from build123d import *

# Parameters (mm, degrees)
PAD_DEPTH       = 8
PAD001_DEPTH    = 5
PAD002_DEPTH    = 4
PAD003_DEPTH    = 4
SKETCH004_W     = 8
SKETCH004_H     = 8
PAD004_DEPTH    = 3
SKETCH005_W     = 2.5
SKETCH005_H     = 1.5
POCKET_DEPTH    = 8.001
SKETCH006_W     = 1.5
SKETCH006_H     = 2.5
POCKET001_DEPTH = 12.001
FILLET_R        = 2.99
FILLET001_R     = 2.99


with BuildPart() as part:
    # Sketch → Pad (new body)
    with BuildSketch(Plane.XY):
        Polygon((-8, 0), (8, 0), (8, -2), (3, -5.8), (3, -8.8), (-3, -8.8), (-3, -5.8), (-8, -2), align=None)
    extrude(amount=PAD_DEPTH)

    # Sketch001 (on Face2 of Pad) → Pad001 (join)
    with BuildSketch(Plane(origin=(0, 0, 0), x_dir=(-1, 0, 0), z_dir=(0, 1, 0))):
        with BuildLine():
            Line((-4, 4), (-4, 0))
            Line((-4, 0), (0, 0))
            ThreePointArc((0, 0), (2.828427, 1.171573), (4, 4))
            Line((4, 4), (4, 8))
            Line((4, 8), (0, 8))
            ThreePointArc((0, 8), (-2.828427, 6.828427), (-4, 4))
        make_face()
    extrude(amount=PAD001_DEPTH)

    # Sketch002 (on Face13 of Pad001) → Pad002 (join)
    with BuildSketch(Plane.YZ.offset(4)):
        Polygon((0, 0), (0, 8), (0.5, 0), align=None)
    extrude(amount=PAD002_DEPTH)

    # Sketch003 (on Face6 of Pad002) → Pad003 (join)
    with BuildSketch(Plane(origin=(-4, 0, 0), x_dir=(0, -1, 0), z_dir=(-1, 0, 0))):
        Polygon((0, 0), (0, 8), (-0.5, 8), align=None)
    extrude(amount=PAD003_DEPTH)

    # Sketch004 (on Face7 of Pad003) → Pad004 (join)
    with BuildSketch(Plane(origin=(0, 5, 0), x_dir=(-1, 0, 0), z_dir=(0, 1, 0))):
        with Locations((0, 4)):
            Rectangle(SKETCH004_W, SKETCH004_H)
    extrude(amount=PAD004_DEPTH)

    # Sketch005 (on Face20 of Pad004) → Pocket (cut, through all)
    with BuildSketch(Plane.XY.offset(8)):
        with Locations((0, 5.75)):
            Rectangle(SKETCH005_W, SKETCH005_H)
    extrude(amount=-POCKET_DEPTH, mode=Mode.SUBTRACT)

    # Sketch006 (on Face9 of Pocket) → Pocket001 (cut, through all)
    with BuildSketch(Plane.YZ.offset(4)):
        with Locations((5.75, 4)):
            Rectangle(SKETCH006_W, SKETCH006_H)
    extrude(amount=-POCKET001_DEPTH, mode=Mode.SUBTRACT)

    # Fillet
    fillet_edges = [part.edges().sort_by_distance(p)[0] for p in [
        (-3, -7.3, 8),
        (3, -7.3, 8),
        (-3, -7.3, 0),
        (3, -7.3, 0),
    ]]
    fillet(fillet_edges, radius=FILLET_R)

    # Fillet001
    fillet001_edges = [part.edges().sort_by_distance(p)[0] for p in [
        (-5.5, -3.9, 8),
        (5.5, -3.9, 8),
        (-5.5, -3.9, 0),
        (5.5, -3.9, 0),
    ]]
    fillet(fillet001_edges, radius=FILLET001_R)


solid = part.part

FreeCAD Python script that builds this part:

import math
import FreeCAD as App
import Part
import Sketcher
from FreeCAD import Vector
Q = App.Units.Quantity


def edges_at(feature, points):
    """Names of the edges that pass closest to the given points."""
    edges = feature.Shape.Edges
    near = lambda p: min(range(len(edges)), key=lambda i: edges[i].distToShape(Part.Vertex(*p))[0])
    return sorted({f"Edge{near(p) + 1}" for p in points})

doc = App.newDocument("Part")
body = doc.addObject("PartDesign::Body", "Body")

# Sketch on XY plane
sketch1 = doc.addObject("Sketcher::SketchObject", "Sketch")
body.addObject(sketch1)
sketch1.AttachmentSupport = (doc.XY_Plane, [""])
sketch1.MapMode = "FlatFace"
sketch1.addGeometry([
    Part.LineSegment(Vector(8, 0, 0), Vector(-8, 0, 0)),  # 0
    Part.LineSegment(Vector(-8, 0, 0), Vector(-8, -2, 0)),  # 1
    Part.LineSegment(Vector(-8, -2, 0), Vector(-3, -5.8, 0)),  # 2
    Part.LineSegment(Vector(-3, -5.8, 0), Vector(-3, -8.8, 0)),  # 3
    Part.LineSegment(Vector(-3, -8.8, 0), Vector(3, -8.8, 0)),  # 4
    Part.LineSegment(Vector(3, -8.8, 0), Vector(3, -5.8, 0)),  # 5
    Part.LineSegment(Vector(3, -5.8, 0), Vector(8, -2, 0)),  # 6
    Part.LineSegment(Vector(8, -2, 0), Vector(8, 0, 0)),  # 7
], False)
sketch1.addConstraint([
    Sketcher.Constraint("Coincident", 0, 2, 1, 1),
    Sketcher.Constraint("Coincident", 1, 2, 2, 1),
    Sketcher.Constraint("Coincident", 2, 2, 3, 1),
    Sketcher.Constraint("Coincident", 3, 2, 4, 1),
    Sketcher.Constraint("Coincident", 4, 2, 5, 1),
    Sketcher.Constraint("Coincident", 5, 2, 6, 1),
    Sketcher.Constraint("Coincident", 6, 2, 7, 1),
    Sketcher.Constraint("Coincident", 7, 2, 0, 1),
    Sketcher.Constraint("Horizontal", 0),
    Sketcher.Constraint("Vertical", 1),
    Sketcher.Constraint("Vertical", 3),
    Sketcher.Constraint("Horizontal", 4),
    Sketcher.Constraint("Vertical", 5),
    Sketcher.Constraint("Vertical", 7),
    Sketcher.Constraint("Symmetric", 0, 2, 7, 2, -1, 1),
    Sketcher.Constraint("Symmetric", 2, 2, 5, 2, -2),
    Sketcher.Constraint("Horizontal", 1, 2, 6, 2),
    Sketcher.Constraint("DistanceX", 0, 2, 0, 1, Q("16 mm")),
    Sketcher.Constraint("DistanceX", 4, 1, 4, 2, Q("6 mm")),
    Sketcher.Constraint("DistanceY", 1, 2, 1, 1, Q("2 mm")),
    Sketcher.Constraint("DistanceY", 3, 2, 3, 1, Q("3 mm")),
    Sketcher.Constraint("DistanceY", 2, 2, -1, 1, Q("5.8 mm")),
])
pad1 = doc.addObject("PartDesign::Pad", "Pad")
body.addObject(pad1)
pad1.Profile = sketch1
pad1.Length = 8

# Sketch on XZ plane
sketch2 = doc.addObject("Sketcher::SketchObject", "Sketch001")
body.addObject(sketch2)
sketch2.AttachmentSupport = (doc.XZ_Plane, [""])
sketch2.MapMode = "FlatFace"
sketch2.addGeometry([
    Part.LineSegment(Vector(4, 4, 0), Vector(4, 0, 0)),  # 0
    Part.LineSegment(Vector(4, 0, 0), Vector(0, 0, 0)),  # 1
    Part.ArcOfCircle(Part.Circle(Vector(0, 4, 0), Vector(0, 0, 1), 4), math.radians(-179.999994), math.radians(-90.000006)),  # 2
    Part.LineSegment(Vector(-4, 4, 0), Vector(-4, 8, 0)),  # 3
    Part.LineSegment(Vector(-4, 8, 0), Vector(0, 8, 0)),  # 4
    Part.ArcOfCircle(Part.Circle(Vector(0, 4, 0), Vector(0, 0, 1), 4), math.radians(0.000006), math.radians(89.999994)),  # 5
], False)
sketch2.addConstraint([
    Sketcher.Constraint("Coincident", 0, 2, 1, 1),
    Sketcher.Constraint("Tangent", 1, 2, 2, 2),
    Sketcher.Constraint("Tangent", 2, 1, 3, 1),
    Sketcher.Constraint("Coincident", 3, 2, 4, 1),
    Sketcher.Constraint("Tangent", 4, 2, 5, 2),
    Sketcher.Constraint("Tangent", 5, 1, 0, 1),
    Sketcher.Constraint("Vertical", 0),
    Sketcher.Constraint("Horizontal", 1),
    Sketcher.Constraint("Vertical", 3),
    Sketcher.Constraint("Horizontal", 4),
    Sketcher.Constraint("Coincident", 1, 2, -1, 1),
    Sketcher.Constraint("Coincident", 5, 3, 2, 3),
    Sketcher.Constraint("Equal", 2, 5),
    Sketcher.Constraint("Radius", 2, Q("4 mm")),
])
pad2 = doc.addObject("PartDesign::Pad", "Pad001")
body.addObject(pad2)
pad2.Profile = sketch2
pad2.Length = 5
pad2.Reversed = True

# Sketch on YZ plane
sketch3 = doc.addObject("Sketcher::SketchObject", "Sketch002")
body.addObject(sketch3)
sketch3.AttachmentSupport = (doc.YZ_Plane, [""])
sketch3.MapMode = "FlatFace"
sketch3.AttachmentOffset = App.Placement(Vector(0, 0, 4), App.Rotation())
sketch3.addGeometry([
    Part.LineSegment(Vector(0, 8, 0), Vector(0, 0, 0)),
    Part.LineSegment(Vector(0, 0, 0), Vector(0.5, 0, 0)),
    Part.LineSegment(Vector(0.5, 0, 0), Vector(0, 8, 0)),
], False)
sketch3.addConstraint([
    Sketcher.Constraint("Coincident", 0, 2, 1, 1),
    Sketcher.Constraint("Coincident", 1, 2, 2, 1),
    Sketcher.Constraint("Coincident", 2, 2, 0, 1),
    Sketcher.Constraint("Vertical", 0),
    Sketcher.Constraint("Horizontal", 1),
    Sketcher.Constraint("Coincident", 0, 2, -1, 1),
    Sketcher.Constraint("DistanceY", 0, 2, 0, 1, Q("8 mm")),
    Sketcher.Constraint("DistanceX", 1, 1, 1, 2, Q("0.5 mm")),
])
pad3 = doc.addObject("PartDesign::Pad", "Pad002")
body.addObject(pad3)
pad3.Profile = sketch3
pad3.Length = 4

# Sketch on YZ plane
sketch4 = doc.addObject("Sketcher::SketchObject", "Sketch003")
body.addObject(sketch4)
sketch4.AttachmentSupport = (doc.YZ_Plane, [""])
sketch4.MapMode = "FlatFace"
sketch4.AttachmentOffset = App.Placement(Vector(0, 0, -4), App.Rotation())
sketch4.addGeometry([
    Part.LineSegment(Vector(0, 0, 0), Vector(0, 8, 0)),
    Part.LineSegment(Vector(0, 8, 0), Vector(0.5, 8, 0)),
    Part.LineSegment(Vector(0.5, 8, 0), Vector(0, 0, 0)),
], False)
sketch4.addConstraint([
    Sketcher.Constraint("Coincident", 0, 2, 1, 1),
    Sketcher.Constraint("Coincident", 1, 2, 2, 1),
    Sketcher.Constraint("Coincident", 2, 2, 0, 1),
    Sketcher.Constraint("Vertical", 0),
    Sketcher.Constraint("Horizontal", 1),
    Sketcher.Constraint("Coincident", 2, 2, -1, 1),
    Sketcher.Constraint("DistanceY", 0, 1, 0, 2, Q("8 mm")),
    Sketcher.Constraint("DistanceX", 1, 1, 1, 2, Q("0.5 mm")),
])
pad4 = doc.addObject("PartDesign::Pad", "Pad003")
body.addObject(pad4)
pad4.Profile = sketch4
pad4.Length = 4
pad4.Reversed = True

# Sketch on XZ plane
sketch5 = doc.addObject("Sketcher::SketchObject", "Sketch004")
body.addObject(sketch5)
sketch5.AttachmentSupport = (doc.XZ_Plane, [""])
sketch5.MapMode = "FlatFace"
sketch5.AttachmentOffset = App.Placement(Vector(0, 0, -5), App.Rotation())
sketch5.addGeometry([
    Part.LineSegment(Vector(4, 8, 0), Vector(4, 0, 0)),
    Part.LineSegment(Vector(4, 0, 0), Vector(-4, 0, 0)),
    Part.LineSegment(Vector(-4, 0, 0), Vector(-4, 8, 0)),
    Part.LineSegment(Vector(-4, 8, 0), Vector(4, 8, 0)),
], False)
sketch5.addConstraint([
    Sketcher.Constraint("Coincident", 0, 2, 1, 1),
    Sketcher.Constraint("Coincident", 1, 2, 2, 1),
    Sketcher.Constraint("Coincident", 2, 2, 3, 1),
    Sketcher.Constraint("Coincident", 3, 2, 0, 1),
    Sketcher.Constraint("Vertical", 0),
    Sketcher.Constraint("Horizontal", 1),
    Sketcher.Constraint("Vertical", 2),
    Sketcher.Constraint("Horizontal", 3),
    Sketcher.Constraint("Symmetric", 0, 2, 1, 2, -1, 1),
    Sketcher.Constraint("Equal", 3, 0),
    Sketcher.Constraint("DistanceX", 1, 2, 1, 1, Q("8 mm")),
])
pad5 = doc.addObject("PartDesign::Pad", "Pad004")
body.addObject(pad5)
pad5.Profile = sketch5
pad5.Length = 3
pad5.Reversed = True

# Sketch on XY plane
sketch6 = doc.addObject("Sketcher::SketchObject", "Sketch005")
body.addObject(sketch6)
sketch6.AttachmentSupport = (doc.XY_Plane, [""])
sketch6.MapMode = "FlatFace"
sketch6.AttachmentOffset = App.Placement(Vector(0, 0, 8), App.Rotation())
sketch6.addGeometry([
    Part.LineSegment(Vector(-1.25, 6.5, 0), Vector(-1.25, 5, 0)),
    Part.LineSegment(Vector(-1.25, 5, 0), Vector(1.25, 5, 0)),
    Part.LineSegment(Vector(1.25, 5, 0), Vector(1.25, 6.5, 0)),
    Part.LineSegment(Vector(1.25, 6.5, 0), Vector(-1.25, 6.5, 0)),
], False)
sketch6.addConstraint([
    Sketcher.Constraint("Coincident", 0, 2, 1, 1),
    Sketcher.Constraint("Coincident", 1, 2, 2, 1),
    Sketcher.Constraint("Coincident", 2, 2, 3, 1),
    Sketcher.Constraint("Coincident", 3, 2, 0, 1),
    Sketcher.Constraint("Vertical", 0),
    Sketcher.Constraint("Horizontal", 1),
    Sketcher.Constraint("Vertical", 2),
    Sketcher.Constraint("Horizontal", 3),
    Sketcher.Constraint("DistanceX", 1, 1, 1, 2, Q("2.5 mm")),
    Sketcher.Constraint("DistanceY", 0, 2, 0, 1, Q("1.5 mm")),
    Sketcher.Constraint("DistanceY", -1, 1, 0, 2, Q("5 mm")),
    Sketcher.Constraint("DistanceX", 0, 2, -1, 1, Q("1.25 mm")),
])
pocket1 = doc.addObject("PartDesign::Pocket", "Pocket")
body.addObject(pocket1)
pocket1.Profile = sketch6
pocket1.Type = "ThroughAll"

# Sketch on YZ plane
sketch7 = doc.addObject("Sketcher::SketchObject", "Sketch006")
body.addObject(sketch7)
sketch7.AttachmentSupport = (doc.YZ_Plane, [""])
sketch7.MapMode = "FlatFace"
sketch7.AttachmentOffset = App.Placement(Vector(0, 0, 4), App.Rotation())
sketch7.addGeometry([
    Part.LineSegment(Vector(5, 5.25, 0), Vector(5, 2.75, 0)),
    Part.LineSegment(Vector(5, 2.75, 0), Vector(6.5, 2.75, 0)),
    Part.LineSegment(Vector(6.5, 2.75, 0), Vector(6.5, 5.25, 0)),
    Part.LineSegment(Vector(6.5, 5.25, 0), Vector(5, 5.25, 0)),
], False)
sketch7.addConstraint([
    Sketcher.Constraint("Coincident", 0, 2, 1, 1),
    Sketcher.Constraint("Coincident", 1, 2, 2, 1),
    Sketcher.Constraint("Coincident", 2, 2, 3, 1),
    Sketcher.Constraint("Coincident", 3, 2, 0, 1),
    Sketcher.Constraint("Vertical", 0),
    Sketcher.Constraint("Horizontal", 1),
    Sketcher.Constraint("Vertical", 2),
    Sketcher.Constraint("Horizontal", 3),
    Sketcher.Constraint("DistanceX", 1, 1, 1, 2, Q("1.5 mm")),
    Sketcher.Constraint("DistanceY", 0, 2, 0, 1, Q("2.5 mm")),
    Sketcher.Constraint("DistanceX", -1, 1, 0, 2, Q("5 mm")),
    Sketcher.Constraint("DistanceY", -1, 1, 0, 2, Q("2.75 mm")),
])
pocket2 = doc.addObject("PartDesign::Pocket", "Pocket001")
body.addObject(pocket2)
pocket2.Profile = sketch7
pocket2.Type = "ThroughAll"
doc.recompute()

fillet = doc.addObject("PartDesign::Fillet", "Fillet")
body.addObject(fillet)
fillet.Base = (pocket2, edges_at(pocket2, [
    (-3, -7.3, 8),
    (3, -7.3, 8),
    (-3, -7.3, 0),
    (3, -7.3, 0),
]))
fillet.Radius = 2.99
doc.recompute()

fillet2 = doc.addObject("PartDesign::Fillet", "Fillet001")
body.addObject(fillet2)
fillet2.Base = (fillet, edges_at(fillet, [
    (-4.005, -5.036, 8),
    (4.005, -5.036, 8),
    (-4.005, -5.036, 0),
    (4.005, -5.036, 0),
]))
fillet2.Radius = 2.99

doc.recompute()
